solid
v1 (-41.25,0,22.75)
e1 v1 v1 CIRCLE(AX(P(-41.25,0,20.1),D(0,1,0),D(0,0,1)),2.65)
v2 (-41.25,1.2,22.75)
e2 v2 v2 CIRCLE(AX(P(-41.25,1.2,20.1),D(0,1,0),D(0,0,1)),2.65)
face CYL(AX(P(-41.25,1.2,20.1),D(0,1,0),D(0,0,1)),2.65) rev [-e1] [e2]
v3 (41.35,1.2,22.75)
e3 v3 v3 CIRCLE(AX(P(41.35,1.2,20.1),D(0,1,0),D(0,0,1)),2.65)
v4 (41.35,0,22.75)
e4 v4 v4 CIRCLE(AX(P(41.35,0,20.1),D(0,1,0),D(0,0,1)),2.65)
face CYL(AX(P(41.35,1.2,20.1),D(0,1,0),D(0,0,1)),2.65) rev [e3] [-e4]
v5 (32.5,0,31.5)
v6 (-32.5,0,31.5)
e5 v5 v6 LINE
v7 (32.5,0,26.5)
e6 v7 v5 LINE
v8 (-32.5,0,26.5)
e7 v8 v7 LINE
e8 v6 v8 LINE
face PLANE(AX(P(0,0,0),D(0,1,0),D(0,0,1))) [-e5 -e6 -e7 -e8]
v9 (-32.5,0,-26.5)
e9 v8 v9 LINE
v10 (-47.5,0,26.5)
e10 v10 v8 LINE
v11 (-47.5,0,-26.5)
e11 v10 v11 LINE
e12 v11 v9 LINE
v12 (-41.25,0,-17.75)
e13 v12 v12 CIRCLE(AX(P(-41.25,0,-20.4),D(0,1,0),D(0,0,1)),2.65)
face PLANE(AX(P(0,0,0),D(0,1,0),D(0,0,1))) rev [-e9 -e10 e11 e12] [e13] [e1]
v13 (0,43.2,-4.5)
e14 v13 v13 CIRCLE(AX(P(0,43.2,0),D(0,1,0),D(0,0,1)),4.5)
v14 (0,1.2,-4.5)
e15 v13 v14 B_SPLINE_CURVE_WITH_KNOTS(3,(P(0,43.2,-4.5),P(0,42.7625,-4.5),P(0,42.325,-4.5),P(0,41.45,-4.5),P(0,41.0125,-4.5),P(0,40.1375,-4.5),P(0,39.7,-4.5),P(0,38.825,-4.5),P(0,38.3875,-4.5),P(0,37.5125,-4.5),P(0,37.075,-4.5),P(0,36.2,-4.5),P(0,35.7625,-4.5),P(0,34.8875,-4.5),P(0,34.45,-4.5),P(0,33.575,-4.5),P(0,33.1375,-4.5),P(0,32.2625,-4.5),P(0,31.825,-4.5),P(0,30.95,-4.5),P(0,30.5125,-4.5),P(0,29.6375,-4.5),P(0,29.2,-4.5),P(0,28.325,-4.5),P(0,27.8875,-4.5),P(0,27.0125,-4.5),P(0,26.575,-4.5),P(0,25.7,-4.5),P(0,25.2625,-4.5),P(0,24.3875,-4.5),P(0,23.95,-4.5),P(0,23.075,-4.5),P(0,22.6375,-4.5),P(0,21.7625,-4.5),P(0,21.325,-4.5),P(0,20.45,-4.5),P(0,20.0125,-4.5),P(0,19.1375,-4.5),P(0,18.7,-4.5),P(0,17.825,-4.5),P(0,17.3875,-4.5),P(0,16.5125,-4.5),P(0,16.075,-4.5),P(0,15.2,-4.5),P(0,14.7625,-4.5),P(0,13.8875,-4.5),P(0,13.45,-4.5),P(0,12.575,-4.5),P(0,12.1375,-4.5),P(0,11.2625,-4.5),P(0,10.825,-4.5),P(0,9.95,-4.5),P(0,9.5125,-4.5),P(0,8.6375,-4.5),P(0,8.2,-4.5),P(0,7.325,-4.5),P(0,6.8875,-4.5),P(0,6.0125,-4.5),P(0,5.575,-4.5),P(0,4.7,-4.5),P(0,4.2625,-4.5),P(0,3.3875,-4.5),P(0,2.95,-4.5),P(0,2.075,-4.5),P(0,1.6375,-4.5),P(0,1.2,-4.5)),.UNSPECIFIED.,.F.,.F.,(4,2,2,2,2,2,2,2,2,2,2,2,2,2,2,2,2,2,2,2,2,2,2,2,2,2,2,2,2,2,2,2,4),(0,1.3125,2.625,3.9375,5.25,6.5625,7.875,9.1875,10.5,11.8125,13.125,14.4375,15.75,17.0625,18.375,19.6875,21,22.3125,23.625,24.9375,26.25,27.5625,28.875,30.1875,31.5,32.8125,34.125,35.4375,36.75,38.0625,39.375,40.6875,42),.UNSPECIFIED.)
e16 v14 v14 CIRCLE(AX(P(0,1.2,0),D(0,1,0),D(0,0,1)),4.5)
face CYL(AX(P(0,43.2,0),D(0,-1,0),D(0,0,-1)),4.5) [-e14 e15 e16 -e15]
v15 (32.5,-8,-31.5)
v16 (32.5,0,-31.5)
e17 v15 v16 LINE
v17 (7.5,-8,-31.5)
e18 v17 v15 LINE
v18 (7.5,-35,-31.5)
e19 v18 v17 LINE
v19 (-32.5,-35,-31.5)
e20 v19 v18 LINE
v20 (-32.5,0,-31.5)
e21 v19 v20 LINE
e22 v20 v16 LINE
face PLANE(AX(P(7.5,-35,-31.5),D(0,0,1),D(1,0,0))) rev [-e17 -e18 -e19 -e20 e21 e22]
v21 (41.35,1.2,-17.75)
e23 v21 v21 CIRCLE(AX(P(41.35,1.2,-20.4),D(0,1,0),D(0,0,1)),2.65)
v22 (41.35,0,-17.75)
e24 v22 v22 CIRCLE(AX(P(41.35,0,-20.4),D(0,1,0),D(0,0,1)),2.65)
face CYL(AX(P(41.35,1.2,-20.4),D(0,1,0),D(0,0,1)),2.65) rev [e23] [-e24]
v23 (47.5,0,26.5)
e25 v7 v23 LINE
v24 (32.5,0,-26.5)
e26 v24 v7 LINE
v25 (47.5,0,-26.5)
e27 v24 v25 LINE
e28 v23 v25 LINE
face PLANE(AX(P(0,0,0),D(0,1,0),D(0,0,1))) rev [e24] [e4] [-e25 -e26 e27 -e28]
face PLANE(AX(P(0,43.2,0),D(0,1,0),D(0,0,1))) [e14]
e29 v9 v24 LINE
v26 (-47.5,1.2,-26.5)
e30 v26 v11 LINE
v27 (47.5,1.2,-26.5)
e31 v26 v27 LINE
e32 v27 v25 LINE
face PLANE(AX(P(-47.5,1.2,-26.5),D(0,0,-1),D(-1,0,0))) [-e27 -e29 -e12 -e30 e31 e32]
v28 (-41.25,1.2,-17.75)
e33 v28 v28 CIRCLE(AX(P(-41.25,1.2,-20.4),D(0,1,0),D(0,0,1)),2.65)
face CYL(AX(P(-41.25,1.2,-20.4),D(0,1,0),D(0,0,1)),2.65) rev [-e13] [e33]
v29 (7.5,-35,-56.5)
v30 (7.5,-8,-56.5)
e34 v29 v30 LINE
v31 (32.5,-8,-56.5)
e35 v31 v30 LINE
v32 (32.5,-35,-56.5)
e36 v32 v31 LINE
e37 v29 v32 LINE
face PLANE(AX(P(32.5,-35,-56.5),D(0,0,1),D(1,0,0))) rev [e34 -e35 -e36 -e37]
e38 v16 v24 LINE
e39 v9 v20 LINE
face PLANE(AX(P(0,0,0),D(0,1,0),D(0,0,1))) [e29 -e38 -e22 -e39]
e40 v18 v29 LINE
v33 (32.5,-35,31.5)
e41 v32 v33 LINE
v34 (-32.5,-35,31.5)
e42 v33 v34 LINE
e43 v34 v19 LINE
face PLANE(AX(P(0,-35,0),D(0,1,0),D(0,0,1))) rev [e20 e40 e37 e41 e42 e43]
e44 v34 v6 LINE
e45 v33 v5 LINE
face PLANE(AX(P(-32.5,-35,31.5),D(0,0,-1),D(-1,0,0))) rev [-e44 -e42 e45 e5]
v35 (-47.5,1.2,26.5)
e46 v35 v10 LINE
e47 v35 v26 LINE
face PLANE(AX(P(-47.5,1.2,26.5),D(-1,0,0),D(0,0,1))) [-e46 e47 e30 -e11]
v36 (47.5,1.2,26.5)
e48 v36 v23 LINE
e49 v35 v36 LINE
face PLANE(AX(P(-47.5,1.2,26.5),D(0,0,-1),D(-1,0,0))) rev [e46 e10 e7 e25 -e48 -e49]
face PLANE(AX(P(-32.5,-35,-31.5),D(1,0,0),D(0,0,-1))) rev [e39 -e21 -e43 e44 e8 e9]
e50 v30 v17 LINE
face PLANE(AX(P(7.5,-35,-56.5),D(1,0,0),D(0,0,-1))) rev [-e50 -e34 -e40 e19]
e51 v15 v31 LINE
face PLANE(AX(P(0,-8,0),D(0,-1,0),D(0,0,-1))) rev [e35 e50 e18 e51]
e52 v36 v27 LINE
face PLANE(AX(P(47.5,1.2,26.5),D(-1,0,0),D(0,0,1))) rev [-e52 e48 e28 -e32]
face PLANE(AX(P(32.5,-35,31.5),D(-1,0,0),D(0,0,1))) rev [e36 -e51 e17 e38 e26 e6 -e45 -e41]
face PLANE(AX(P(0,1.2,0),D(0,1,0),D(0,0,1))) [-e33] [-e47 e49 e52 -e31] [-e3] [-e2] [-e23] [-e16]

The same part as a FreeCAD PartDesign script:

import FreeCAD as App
import Part
import Sketcher
Q = App.Units.Quantity

doc = App.newDocument("Part")
body = doc.addObject("PartDesign::Body", "Body")

# Sketch on XZ plane
sketch1 = doc.addObject("Sketcher::SketchObject", "Sketch")
body.addObject(sketch1)
sketch1.AttachmentSupport = (doc.XZ_Plane, [""])
sketch1.MapMode = "FlatFace"
sketch1.addGeometry(Part.LineSegment(App.Vector(-48, -26, 0), App.Vector(-48, 26, 0)), False)
sketch1.addGeometry(Part.LineSegment(App.Vector(-48, 26, 0), App.Vector(48, 26, 0)), False)
sketch1.addGeometry(Part.LineSegment(App.Vector(48, 26, 0), App.Vector(48, -26, 0)), False)
sketch1.addGeometry(Part.LineSegment(App.Vector(48, -26, 0), App.Vector(-48, -26, 0)), False)
sketch1.addConstraint(Sketcher.Constraint("Coincident", 0, 2, 1, 1))
sketch1.addConstraint(Sketcher.Constraint("Coincident", 1, 2, 2, 1))
sketch1.addConstraint(Sketcher.Constraint("Coincident", 2, 2, 3, 1))
sketch1.addConstraint(Sketcher.Constraint("Coincident", 3, 2, 0, 1))
sketch1.addConstraint(Sketcher.Constraint("Vertical", 0))
sketch1.addConstraint(Sketcher.Constraint("Horizontal", 1))
sketch1.addConstraint(Sketcher.Constraint("Vertical", 2))
sketch1.addConstraint(Sketcher.Constraint("Horizontal", 3))
sketch1.addConstraint(Sketcher.Constraint("Symmetric", 0, 2, 2, 2, -1, 1))
sketch1.addConstraint(Sketcher.Constraint("DistanceX", 1, 1, 1, 2, Q("95 mm")))
sketch1.addConstraint(Sketcher.Constraint("DistanceY", 0, 1, 0, 2, Q("53 mm")))
pad1 = doc.addObject("PartDesign::Pad", "Pad")
body.addObject(pad1)
pad1.Profile = sketch1
pad1.Length = 1.2
pad1.Reversed = True

# Sketch on XZ plane
sketch2 = doc.addObject("Sketcher::SketchObject", "Sketch001")
body.addObject(sketch2)
sketch2.AttachmentSupport = (doc.XZ_Plane, [""])
sketch2.MapMode = "FlatFace"
sketch2.addGeometry(Part.LineSegment(App.Vector(8, -56, 0), App.Vector(32, -56, 0)), False)
sketch2.addGeometry(Part.LineSegment(App.Vector(32, -56, 0), App.Vector(32, 32, 0)), False)
sketch2.addGeometry(Part.LineSegment(App.Vector(32, 32, 0), App.Vector(-32, 32, 0)), False)
sketch2.addGeometry(Part.LineSegment(App.Vector(-32, 32, 0), App.Vector(-32, -32, 0)), False)
sketch2.addGeometry(Part.LineSegment(App.Vector(-32, -32, 0), App.Vector(8, -32, 0)), False)
sketch2.addGeometry(Part.LineSegment(App.Vector(8, -32, 0), App.Vector(8, -56, 0)), False)
sketch2.addConstraint(Sketcher.Constraint("Coincident", 0, 2, 1, 1))
sketch2.addConstraint(Sketcher.Constraint("Coincident", 1, 2, 2, 1))
sketch2.addConstraint(Sketcher.Constraint("Coincident", 2, 2, 3, 1))
sketch2.addConstraint(Sketcher.Constraint("Coincident", 3, 2, 4, 1))
sketch2.addConstraint(Sketcher.Constraint("Coincident", 4, 2, 5, 1))
sketch2.addConstraint(Sketcher.Constraint("Coincident", 5, 2, 0, 1))
sketch2.addConstraint(Sketcher.Constraint("Horizontal", 0))
sketch2.addConstraint(Sketcher.Constraint("Vertical", 1))
sketch2.addConstraint(Sketcher.Constraint("Horizontal", 2))
sketch2.addConstraint(Sketcher.Constraint("Vertical", 3))
sketch2.addConstraint(Sketcher.Constraint("Horizontal", 4))
sketch2.addConstraint(Sketcher.Constraint("Vertical", 5))
sketch2.addConstraint(Sketcher.Constraint("Symmetric", 1, 2, 3, 2, -1, 1))
sketch2.addConstraint(Sketcher.Constraint("Equal", 0, 5))
sketch2.addConstraint(Sketcher.Constraint("DistanceX", 0, 1, 0, 2, Q("25 mm")))
sketch2.addConstraint(Sketcher.Constraint("DistanceX", 2, 2, 2, 1, Q("65 mm")))
sketch2.addConstraint(Sketcher.Constraint("DistanceY", 1, 1, 1, 2, Q("88 mm")))
pad2 = doc.addObject("PartDesign::Pad", "Pad001")
body.addObject(pad2)
pad2.Profile = sketch2
pad2.Length = 35

# Sketch on XZ plane
sketch3 = doc.addObject("Sketcher::SketchObject", "Sketch002")
body.addObject(sketch3)
sketch3.AttachmentSupport = (doc.XZ_Plane, [""])
sketch3.MapMode = "FlatFace"
sketch3.addGeometry(Part.LineSegment(App.Vector(8, -56, 0), App.Vector(8, -32, 0)), False)
sketch3.addGeometry(Part.LineSegment(App.Vector(8, -32, 0), App.Vector(32, -32, 0)), False)
sketch3.addGeometry(Part.LineSegment(App.Vector(32, -32, 0), App.Vector(32, -56, 0)), False)
sketch3.addGeometry(Part.LineSegment(App.Vector(32, -56, 0), App.Vector(8, -56, 0)), False)
sketch3.addConstraint(Sketcher.Constraint("Coincident", 0, 2, 1, 1))
sketch3.addConstraint(Sketcher.Constraint("Coincident", 1, 2, 2, 1))
sketch3.addConstraint(Sketcher.Constraint("Coincident", 2, 2, 3, 1))
sketch3.addConstraint(Sketcher.Constraint("Coincident", 3, 2, 0, 1))
sketch3.addConstraint(Sketcher.Constraint("Vertical", 0))
sketch3.addConstraint(Sketcher.Constraint("Horizontal", 1))
sketch3.addConstraint(Sketcher.Constraint("Vertical", 2))
sketch3.addConstraint(Sketcher.Constraint("Horizontal", 3))
sketch3.addConstraint(Sketcher.Constraint("Equal", 3, 0))
sketch3.addConstraint(Sketcher.Constraint("DistanceX", 1, 1, 1, 2, Q("25 mm")))
sketch3.addConstraint(Sketcher.Constraint("DistanceX", -1, 1, 0, 2, Q("7.5 mm")))
sketch3.addConstraint(Sketcher.Constraint("DistanceY", 0, 2, -1, 1, Q("31.5 mm")))
pocket1 = doc.addObject("PartDesign::Pocket", "Pocket")
body.addObject(pocket1)
pocket1.Profile = sketch3
pocket1.Length = 8
pocket1.Reversed = True

# Sketch on XZ plane
sketch4 = doc.addObject("Sketcher::SketchObject", "Sketch003")
body.addObject(sketch4)
sketch4.AttachmentSupport = (doc.XZ_Plane, [""])
sketch4.MapMode = "FlatFace"
sketch4.AttachmentOffset = App.Placement(App.Vector(0, 0, -1.2), App.Rotation())
sketch4.addGeometry(Part.Circle(App.Vector(0, 0, 0), App.Vector(0, 0, 1), 4.5), False)
sketch4.addConstraint(Sketcher.Constraint("Coincident", 0, 3, -1, 1))
sketch4.addConstraint(Sketcher.Constraint("Diameter", 0, Q("9 mm")))
pad3 = doc.addObject("PartDesign::Pad", "Pad002")
body.addObject(pad3)
pad3.Profile = sketch4
pad3.Length = 42
pad3.Reversed = True

# Sketch on XZ plane
sketch5 = doc.addObject("Sketcher::SketchObject", "Sketch004")
body.addObject(sketch5)
sketch5.AttachmentSupport = (doc.XZ_Plane, [""])
sketch5.MapMode = "FlatFace"
sketch5.AttachmentOffset = App.Placement(App.Vector(0, 0, -1.2), App.Rotation())
sketch5.addGeometry(Part.Circle(App.Vector(-41.2, -20.4, 0), App.Vector(0, 0, 1), 2.6), False)
sketch5.addGeometry(Part.Circle(App.Vector(-41.2, 20.1, 0), App.Vector(0, 0, 1), 2.6), False)
sketch5.addGeometry(Part.Circle(App.Vector(41.4, 20.1, 0), App.Vector(0, 0, 1), 2.6), False)
sketch5.addGeometry(Part.Circle(App.Vector(41.4, -20.4, 0), App.Vector(0, 0, 1), 2.6), False)
sketch5.addConstraint(Sketcher.Constraint("Equal", 0, 1))
sketch5.addConstraint(Sketcher.Constraint("Equal", 1, 2))
sketch5.addConstraint(Sketcher.Constraint("Equal", 2, 3))
sketch5.addConstraint(Sketcher.Constraint("Horizontal", 1, 3, 2, 3))
sketch5.addConstraint(Sketcher.Constraint("Horizontal", 0, 3, 3, 3))
sketch5.addConstraint(Sketcher.Constraint("Vertical", 0, 3, 1, 3))
sketch5.addConstraint(Sketcher.Constraint("Vertical", 2, 3, 3, 3))
sketch5.addConstraint(Sketcher.Constraint("Diameter", 0, Q("5.3 mm")))
sketch5.addConstraint(Sketcher.Constraint("DistanceY", 0, 3, -1, 1, Q("20.4 mm")))
sketch5.addConstraint(Sketcher.Constraint("DistanceY", -1, 1, 1, 3, Q("20.1 mm")))
sketch5.addConstraint(Sketcher.Constraint("DistanceX", 1, 3, 2, 3, Q("82.6 mm")))
sketch5.addConstraint(Sketcher.Constraint("DistanceX", 0, 3, -1, 1, Q("41.25 mm")))
doc.recompute()
hole = doc.addObject("PartDesign::Hole", "Hole")
body.addObject(hole)
hole.Profile = sketch5
hole.ThreadType = "None"
hole.Diameter = 5.3
hole.DepthType = "ThroughAll"
hole.Reversed = True

doc.recompute()
